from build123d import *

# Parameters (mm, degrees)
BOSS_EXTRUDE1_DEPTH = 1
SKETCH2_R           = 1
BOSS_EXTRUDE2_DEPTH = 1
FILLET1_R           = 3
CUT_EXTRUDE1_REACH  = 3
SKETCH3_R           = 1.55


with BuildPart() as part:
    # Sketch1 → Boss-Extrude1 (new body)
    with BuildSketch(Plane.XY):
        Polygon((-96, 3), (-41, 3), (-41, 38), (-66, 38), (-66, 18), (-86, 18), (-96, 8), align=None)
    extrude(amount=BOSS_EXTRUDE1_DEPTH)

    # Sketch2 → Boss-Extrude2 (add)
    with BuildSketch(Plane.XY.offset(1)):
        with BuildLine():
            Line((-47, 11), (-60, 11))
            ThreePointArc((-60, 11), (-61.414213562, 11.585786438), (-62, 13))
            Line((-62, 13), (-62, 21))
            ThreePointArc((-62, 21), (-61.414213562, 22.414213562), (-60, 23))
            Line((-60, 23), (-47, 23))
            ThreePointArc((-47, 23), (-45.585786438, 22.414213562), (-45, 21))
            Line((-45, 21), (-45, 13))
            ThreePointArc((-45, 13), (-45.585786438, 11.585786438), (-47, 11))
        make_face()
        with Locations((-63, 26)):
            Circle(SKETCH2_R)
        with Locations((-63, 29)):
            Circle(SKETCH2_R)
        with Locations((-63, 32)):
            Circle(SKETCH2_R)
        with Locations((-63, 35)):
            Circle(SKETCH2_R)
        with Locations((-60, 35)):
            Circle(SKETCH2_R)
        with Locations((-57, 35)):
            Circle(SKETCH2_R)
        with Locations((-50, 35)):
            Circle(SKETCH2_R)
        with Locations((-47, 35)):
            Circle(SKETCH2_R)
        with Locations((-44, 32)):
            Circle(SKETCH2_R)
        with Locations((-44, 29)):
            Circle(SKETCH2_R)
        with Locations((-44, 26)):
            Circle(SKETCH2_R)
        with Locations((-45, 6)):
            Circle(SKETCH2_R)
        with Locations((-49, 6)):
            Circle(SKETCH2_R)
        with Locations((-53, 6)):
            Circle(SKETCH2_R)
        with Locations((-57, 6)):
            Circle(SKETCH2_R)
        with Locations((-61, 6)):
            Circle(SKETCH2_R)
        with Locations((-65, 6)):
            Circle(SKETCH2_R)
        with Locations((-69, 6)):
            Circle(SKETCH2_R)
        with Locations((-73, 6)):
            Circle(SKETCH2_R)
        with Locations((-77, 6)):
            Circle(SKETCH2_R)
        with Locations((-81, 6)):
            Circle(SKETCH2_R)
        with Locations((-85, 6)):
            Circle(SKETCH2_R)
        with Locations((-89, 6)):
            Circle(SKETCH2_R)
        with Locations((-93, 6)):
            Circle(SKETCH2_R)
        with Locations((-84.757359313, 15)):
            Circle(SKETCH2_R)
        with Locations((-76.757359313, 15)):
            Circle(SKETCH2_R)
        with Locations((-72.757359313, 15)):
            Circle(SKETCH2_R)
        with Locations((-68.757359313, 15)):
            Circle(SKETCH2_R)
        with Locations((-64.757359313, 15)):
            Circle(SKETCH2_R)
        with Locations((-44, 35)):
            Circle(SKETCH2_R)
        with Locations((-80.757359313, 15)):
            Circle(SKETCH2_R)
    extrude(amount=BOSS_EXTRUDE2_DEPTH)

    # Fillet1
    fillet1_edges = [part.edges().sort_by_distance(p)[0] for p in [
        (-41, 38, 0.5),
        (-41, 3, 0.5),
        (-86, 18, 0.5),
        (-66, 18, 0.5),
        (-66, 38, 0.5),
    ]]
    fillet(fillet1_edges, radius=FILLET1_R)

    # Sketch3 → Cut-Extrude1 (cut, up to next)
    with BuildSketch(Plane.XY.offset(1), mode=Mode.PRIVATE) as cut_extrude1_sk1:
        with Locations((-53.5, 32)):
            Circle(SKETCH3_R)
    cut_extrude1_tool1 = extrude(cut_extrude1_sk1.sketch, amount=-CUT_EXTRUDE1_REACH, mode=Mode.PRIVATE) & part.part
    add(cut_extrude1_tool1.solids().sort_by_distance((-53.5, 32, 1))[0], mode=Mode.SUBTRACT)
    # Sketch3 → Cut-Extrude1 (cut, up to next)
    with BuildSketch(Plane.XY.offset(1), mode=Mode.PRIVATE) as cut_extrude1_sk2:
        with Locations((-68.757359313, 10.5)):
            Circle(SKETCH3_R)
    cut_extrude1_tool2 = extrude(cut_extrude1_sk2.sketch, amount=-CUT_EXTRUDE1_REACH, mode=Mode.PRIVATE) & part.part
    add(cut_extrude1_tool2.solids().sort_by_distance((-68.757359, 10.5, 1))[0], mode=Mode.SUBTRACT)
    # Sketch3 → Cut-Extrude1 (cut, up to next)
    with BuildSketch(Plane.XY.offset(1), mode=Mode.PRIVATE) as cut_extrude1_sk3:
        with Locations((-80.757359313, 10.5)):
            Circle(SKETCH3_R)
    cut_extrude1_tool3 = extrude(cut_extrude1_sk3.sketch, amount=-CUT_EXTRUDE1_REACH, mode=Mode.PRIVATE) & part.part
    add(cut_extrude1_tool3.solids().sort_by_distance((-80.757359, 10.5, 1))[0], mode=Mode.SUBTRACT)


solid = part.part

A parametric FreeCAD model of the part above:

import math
import FreeCAD as App
import Part
import Sketcher

V = App.Vector
Q = App.Units.Quantity


def edges_at(feature, points):
    """Names of the edges that pass closest to the given points."""
    edges = feature.Shape.Edges
    near = lambda p: min(range(len(edges)), key=lambda i: edges[i].distToShape(Part.Vertex(*p))[0])
    return sorted({f"Edge{near(p) + 1}" for p in points})


def add_polygon(sketch, points):
    """Adds a closed chain of lines whose ends are joined by coincident constraints."""
    first, n = sketch.GeometryCount, len(points)
    for a, b in zip(points, points[1:] + points[:1]):
        sketch.addGeometry(Part.LineSegment(App.Vector(*a, 0), App.Vector(*b, 0)), False)
    for i in range(n):
        sketch.addConstraint(Sketcher.Constraint("Coincident", first + i, 2, first + (i + 1) % n, 1))

doc = App.newDocument("Part")
body = doc.addObject("PartDesign::Body", "Body")

# Sketch on XY plane
sketch1 = body.newObject("Sketcher::SketchObject", "Sketch")
sketch1.AttachmentSupport = (doc.getObject("XY_Plane"), [""])
sketch1.MapMode = "FlatFace"
add_polygon(sketch1, [(-96, 3), (-41, 3), (-41, 38), (-66, 38), (-66, 18), (-86, 18), (-96, 8)])  # lines 0-6
sketch1.addConstraint([
    Sketcher.Constraint("Horizontal", 0),
    Sketcher.Constraint("Vertical", 1),
    Sketcher.Constraint("Horizontal", 2),
    Sketcher.Constraint("Vertical", 3),
    Sketcher.Constraint("Horizontal", 4),
    Sketcher.Constraint("Vertical", 6),
    Sketcher.Constraint("Equal", 4, 3),
    Sketcher.Constraint("DistanceX", 0, 1, 0, 2, Q("55 mm")),
    Sketcher.Constraint("DistanceX", 2, 2, 2, 1, Q("25 mm")),
    Sketcher.Constraint("DistanceX", 4, 2, 4, 1, Q("20 mm")),
    Sketcher.Constraint("DistanceY", 1, 1, 1, 2, Q("35 mm")),
    Sketcher.Constraint("DistanceY", 6, 2, 6, 1, Q("5 mm")),
    Sketcher.Constraint("DistanceX", 0, 2, -1, 1, Q("41 mm")),
    Sketcher.Constraint("DistanceY", -1, 1, 0, 2, Q("3 mm")),
])
pad1 = body.newObject("PartDesign::Pad", "Pad")
pad1.Profile = sketch1
pad1.Length = 1

# Sketch on XY plane
sketch2 = body.newObject("Sketcher::SketchObject", "Sketch001")
sketch2.AttachmentSupport = (doc.getObject("XY_Plane"), [""])
sketch2.MapMode = "FlatFace"
sketch2.AttachmentOffset = App.Placement(V(0, 0, 1), App.Rotation())
sketch2.addGeometry([
    Part.LineSegment(V(-60, 11, 0), V(-47, 11, 0)),  # 0
    Part.ArcOfCircle(Part.Circle(V(-47, 13, 0), V(0, 0, 1), 2), math.radians(-90), math.radians(0)),  # 1
    Part.LineSegment(V(-45, 13, 0), V(-45, 21, 0)),  # 2
    Part.ArcOfCircle(Part.Circle(V(-47, 21, 0), V(0, 0, 1), 2), math.radians(0), math.radians(90)),  # 3
    Part.LineSegment(V(-47, 23, 0), V(-60, 23, 0)),  # 4
    Part.ArcOfCircle(Part.Circle(V(-60, 21, 0), V(0, 0, 1), 2), math.radians(90), math.radians(180)),  # 5
    Part.LineSegment(V(-62, 21, 0), V(-62, 13, 0)),  # 6
    Part.ArcOfCircle(Part.Circle(V(-60, 13, 0), V(0, 0, 1), 2), math.radians(-180), math.radians(-90)),  # 7
    Part.Circle(V(-63, 26, 0), V(0, 0, 1), 1),  # 8
    Part.Circle(V(-63, 29, 0), V(0, 0, 1), 1),  # 9
    Part.Circle(V(-63, 32, 0), V(0, 0, 1), 1),  # 10
    Part.Circle(V(-63, 35, 0), V(0, 0, 1), 1),  # 11
    Part.Circle(V(-60, 35, 0), V(0, 0, 1), 1),  # 12
    Part.Circle(V(-57, 35, 0), V(0, 0, 1), 1),  # 13
    Part.Circle(V(-50, 35, 0), V(0, 0, 1), 1),  # 14
    Part.Circle(V(-47, 35, 0), V(0, 0, 1), 1),  # 15
    Part.Circle(V(-44, 32, 0), V(0, 0, 1), 1),  # 16
    Part.Circle(V(-44, 29, 0), V(0, 0, 1), 1),  # 17
    Part.Circle(V(-44, 26, 0), V(0, 0, 1), 1),  # 18
    Part.Circle(V(-45, 6, 0), V(0, 0, 1), 1),  # 19
    Part.Circle(V(-49, 6, 0), V(0, 0, 1), 1),  # 20
    Part.Circle(V(-53, 6, 0), V(0, 0, 1), 1),  # 21
    Part.Circle(V(-57, 6, 0), V(0, 0, 1), 1),  # 22
    Part.Circle(V(-61, 6, 0), V(0, 0, 1), 1),  # 23
    Part.Circle(V(-65, 6, 0), V(0, 0, 1), 1),  # 24
    Part.Circle(V(-69, 6, 0), V(0, 0, 1), 1),  # 25
    Part.Circle(V(-73, 6, 0), V(0, 0, 1), 1),  # 26
    Part.Circle(V(-77, 6, 0), V(0, 0, 1), 1),  # 27
    Part.Circle(V(-81, 6, 0), V(0, 0, 1), 1),  # 28
    Part.Circle(V(-85, 6, 0), V(0, 0, 1), 1),  # 29
    Part.Circle(V(-89, 6, 0), V(0, 0, 1), 1),  # 30
    Part.Circle(V(-93, 6, 0), V(0, 0, 1), 1),  # 31
    Part.Circle(V(-84.757359, 15, 0), V(0, 0, 1), 1),  # 32
    Part.Circle(V(-76.757359, 15, 0), V(0, 0, 1), 1),  # 33
    Part.Circle(V(-72.757359, 15, 0), V(0, 0, 1), 1),  # 34
    Part.Circle(V(-68.757359, 15, 0), V(0, 0, 1), 1),  # 35
    Part.Circle(V(-64.757359, 15, 0), V(0, 0, 1), 1),  # 36
    Part.Circle(V(-44, 35, 0), V(0, 0, 1), 1),  # 37
    Part.Circle(V(-80.757359, 15, 0), V(0, 0, 1), 1),  # 38
], False)
sketch2.addConstraint([
    Sketcher.Constraint("Tangent", 0, 2, 1, 1),
    Sketcher.Constraint("Tangent", 1, 2, 2, 1),
    Sketcher.Constraint("Tangent", 2, 2, 3, 1),
    Sketcher.Constraint("Tangent", 3, 2, 4, 1),
    Sketcher.Constraint("Tangent", 4, 2, 5, 1),
    Sketcher.Constraint("Tangent", 5, 2, 6, 1),
    Sketcher.Constraint("Tangent", 6, 2, 7, 1),
    Sketcher.Constraint("Tangent", 7, 2, 0, 1),
    Sketcher.Constraint("Horizontal", 0),
    Sketcher.Constraint("Vertical", 2),
    Sketcher.Constraint("Horizontal", 4),
    Sketcher.Constraint("Vertical", 6),
    Sketcher.Constraint("Equal", 1, 3),
    Sketcher.Constraint("Equal", 3, 5),
    Sketcher.Constraint("Equal", 5, 7),
    Sketcher.Constraint("Equal", 8, 9),
    Sketcher.Constraint("Equal", 9, 10),
    Sketcher.Constraint("Equal", 10, 11),
    Sketcher.Constraint("Equal", 11, 12),
    Sketcher.Constraint("Equal", 12, 13),
    Sketcher.Constraint("Equal", 13, 14),
    Sketcher.Constraint("Equal", 14, 15),
    Sketcher.Constraint("Equal", 15, 16),
    Sketcher.Constraint("Equal", 16, 17),
    Sketcher.Constraint("Equal", 17, 18),
    Sketcher.Constraint("Equal", 18, 19),
    Sketcher.Constraint("Equal", 19, 20),
    Sketcher.Constraint("Equal", 20, 21),
    Sketcher.Constraint("Equal", 21, 22),
    Sketcher.Constraint("Equal", 22, 23),
    Sketcher.Constraint("Equal", 23, 24),
    Sketcher.Constraint("Equal", 24, 25),
    Sketcher.Constraint("Equal", 25, 26),
    Sketcher.Constraint("Equal", 26, 27),
    Sketcher.Constraint("Equal", 27, 28),
    Sketcher.Constraint("Equal", 28, 29),
    Sketcher.Constraint("Equal", 29, 30),
    Sketcher.Constraint("Equal", 30, 31),
    Sketcher.Constraint("Equal", 31, 32),
    Sketcher.Constraint("Equal", 32, 33),
    Sketcher.Constraint("Equal", 33, 34),
    Sketcher.Constraint("Equal", 34, 35),
    Sketcher.Constraint("Equal", 35, 36),
    Sketcher.Constraint("Equal", 36, 37),
    Sketcher.Constraint("Equal", 37, 38),
    Sketcher.Constraint("Horizontal", 11, 3, 12, 3),
    Sketcher.Constraint("Horizontal", 12, 3, 13, 3),
    Sketcher.Constraint("Horizontal", 13, 3, 14, 3),
    Sketcher.Constraint("Horizontal", 14, 3, 15, 3),
    Sketcher.Constraint("Horizontal", 10, 3, 16, 3),
    Sketcher.Constraint("Horizontal", 9, 3, 17, 3),
    Sketcher.Constraint("Horizontal", 8, 3, 18, 3),
    Sketcher.Constraint("Horizontal", 19, 3, 20, 3),
    Sketcher.Constraint("Horizontal", 20, 3, 21, 3),
    Sketcher.Constraint("Horizontal", 21, 3, 22, 3),
    Sketcher.Constraint("Horizontal", 22, 3, 23, 3),
    Sketcher.Constraint("Horizontal", 23, 3, 24, 3),
    Sketcher.Constraint("Horizontal", 24, 3, 25, 3),
    Sketcher.Constraint("Horizontal", 25, 3, 26, 3),
    Sketcher.Constraint("Horizontal", 26, 3, 27, 3),
    Sketcher.Constraint("Horizontal", 27, 3, 28, 3),
    Sketcher.Constraint("Horizontal", 28, 3, 29, 3),
    Sketcher.Constraint("Horizontal", 29, 3, 30, 3),
    Sketcher.Constraint("Horizontal", 30, 3, 31, 3),
    Sketcher.Constraint("Horizontal", 32, 3, 33, 3),
    Sketcher.Constraint("Horizontal", 33, 3, 34, 3),
    Sketcher.Constraint("Horizontal", 34, 3, 35, 3),
    Sketcher.Constraint("Horizontal", 35, 3, 36, 3),
    Sketcher.Constraint("Horizontal", 15, 3, 37, 3),
    Sketcher.Constraint("Horizontal", 36, 3, 38, 3),
    Sketcher.Constraint("Vertical", 8, 3, 9, 3),
    Sketcher.Constraint("Vertical", 9, 3, 10, 3),
    Sketcher.Constraint("Vertical", 10, 3, 11, 3),
    Sketcher.Constraint("Vertical", 7, 3, 12, 3),
    Sketcher.Constraint("Vertical", 3, 3, 15, 3),
    Sketcher.Constraint("Vertical", 16, 3, 17, 3),
    Sketcher.Constraint("Vertical", 17, 3, 18, 3),
    Sketcher.Constraint("Vertical", 13, 3, 22, 3),
    Sketcher.Constraint("Vertical", 18, 3, 37, 3),
    Sketcher.Constraint("Vertical", 19, 3, 1, 2),
    Sketcher.Constraint("Diameter", 8, Q("2 mm")),
    Sketcher.Constraint("Radius", 1, Q("2 mm")),
    Sketcher.Constraint("DistanceX", 0, 1, 0, 2, Q("13 mm")),
    Sketcher.Constraint("DistanceY", 2, 1, 2, 2, Q("8 mm")),
    Sketcher.Constraint("DistanceX", 1, 3, -1, 1, Q("47 mm")),
    Sketcher.Constraint("DistanceY", -1, 1, 1, 3, Q("13 mm")),
    Sketcher.Constraint("DistanceX", 8, 3, -1, 1, Q("63 mm")),
    Sketcher.Constraint("DistanceY", -1, 1, 8, 3, Q("26 mm")),
    Sketcher.Constraint("DistanceY", -1, 1, 9, 3, Q("29 mm")),
    Sketcher.Constraint("DistanceY", -1, 1, 10, 3, Q("32 mm")),
    Sketcher.Constraint("DistanceY", -1, 1, 11, 3, Q("35 mm")),
    Sketcher.Constraint("DistanceX", 13, 3, -1, 1, Q("57 mm")),
    Sketcher.Constraint("DistanceX", 14, 3, -1, 1, Q("50 mm")),
    Sketcher.Constraint("DistanceX", 16, 3, -1, 1, Q("44 mm")),
    Sketcher.Constraint("DistanceY", -1, 1, 19, 3, Q("6 mm")),
    Sketcher.Constraint("DistanceX", 20, 3, -1, 1, Q("49 mm")),
    Sketcher.Constraint("DistanceX", 21, 3, -1, 1, Q("53 mm")),
    Sketcher.Constraint("DistanceX", 23, 3, -1, 1, Q("61 mm")),
    Sketcher.Constraint("DistanceX", 24, 3, -1, 1, Q("65 mm")),
    Sketcher.Constraint("DistanceX", 25, 3, -1, 1, Q("69 mm")),
    Sketcher.Constraint("DistanceX", 26, 3, -1, 1, Q("73 mm")),
    Sketcher.Constraint("DistanceX", 27, 3, -1, 1, Q("77 mm")),
    Sketcher.Constraint("DistanceX", 28, 3, -1, 1, Q("81 mm")),
    Sketcher.Constraint("DistanceX", 29, 3, -1, 1, Q("85 mm")),
    Sketcher.Constraint("DistanceX", 30, 3, -1, 1, Q("89 mm")),
    Sketcher.Constraint("DistanceX", 31, 3, -1, 1, Q("93 mm")),
    Sketcher.Constraint("DistanceY", -1, 1, 32, 3, Q("15 mm")),
    Sketcher.Constraint("DistanceX", 32, 3, 33, 3, Q("8 mm")),
    Sketcher.Constraint("DistanceX", 33, 3, 34, 3, Q("4 mm")),
    Sketcher.Constraint("DistanceX", 34, 3, 35, 3, Q("4 mm")),
    Sketcher.Constraint("DistanceX", 35, 3, 36, 3, Q("4 mm")),
    Sketcher.Constraint("DistanceX", 32, 3, 38, 3, Q("4 mm")),
    Sketcher.Constraint("DistanceX", 32, 3, -1, 1, Q("84.757359 mm")),
])
pad2 = body.newObject("PartDesign::Pad", "Pad001")
pad2.Profile = sketch2
pad2.Length = 1
doc.recompute()

fillet = body.newObject("PartDesign::Fillet", "Fillet")
fillet.Base = (pad2, edges_at(pad2, [
    (-41, 38, 0.5),
    (-41, 3, 0.5),
    (-86, 18, 0.5),
    (-66, 18, 0.5),
    (-66, 38, 0.5),
]))
fillet.Radius = 3

# Sketch on XY plane
sketch3 = body.newObject("Sketcher::SketchObject", "Sketch002")
sketch3.AttachmentSupport = (doc.getObject("XY_Plane"), [""])
sketch3.MapMode = "FlatFace"
sketch3.AttachmentOffset = App.Placement(V(0, 0, 1), App.Rotation())
sketch3.addGeometry(Part.Circle(V(-53.5, 32, 0), V(0, 0, 1), 1.55), False)
sketch3.addConstraint([
    Sketcher.Constraint("Diameter", 0, Q("3.1 mm")),
    Sketcher.Constraint("DistanceY", -1, 1, 0, 3, Q("32 mm")),
    Sketcher.Constraint("DistanceX", 0, 3, -1, 1, Q("53.5 mm")),
])
pocket1 = body.newObject("PartDesign::Pocket", "Pocket")
pocket1.Profile = sketch3
pocket1.Type = "UpToFirst"

# Sketch on XY plane
sketch4 = body.newObject("Sketcher::SketchObject", "Sketch003")
sketch4.AttachmentSupport = (doc.getObject("XY_Plane"), [""])
sketch4.MapMode = "FlatFace"
sketch4.AttachmentOffset = App.Placement(V(0, 0, 1), App.Rotation())
sketch4.addGeometry(Part.Circle(V(-68.757359, 10.5, 0), V(0, 0, 1), 1.55), False)
sketch4.addConstraint([
    Sketcher.Constraint("Diameter", 0, Q("3.1 mm")),
    Sketcher.Constraint("DistanceY", -1, 1, 0, 3, Q("10.5 mm")),
    Sketcher.Constraint("DistanceX", 0, 3, -1, 1, Q("68.757359 mm")),
])
pocket2 = body.newObject("PartDesign::Pocket", "Pocket001")
pocket2.Profile = sketch4
pocket2.Type = "UpToFirst"

# Sketch on XY plane
sketch5 = body.newObject("Sketcher::SketchObject", "Sketch004")
sketch5.AttachmentSupport = (doc.getObject("XY_Plane"), [""])
sketch5.MapMode = "FlatFace"
sketch5.AttachmentOffset = App.Placement(V(0, 0, 1), App.Rotation())
sketch5.addGeometry(Part.Circle(V(-80.757359, 10.5, 0), V(0, 0, 1), 1.55), False)
sketch5.addConstraint([
    Sketcher.Constraint("Diameter", 0, Q("3.1 mm")),
    Sketcher.Constraint("DistanceY", -1, 1, 0, 3, Q("10.5 mm")),
    Sketcher.Constraint("DistanceX", 0, 3, -1, 1, Q("80.757359 mm")),
])
pocket3 = body.newObject("PartDesign::Pocket", "Pocket002")
pocket3.Profile = sketch5
pocket3.Type = "UpToFirst"

doc.recompute()
